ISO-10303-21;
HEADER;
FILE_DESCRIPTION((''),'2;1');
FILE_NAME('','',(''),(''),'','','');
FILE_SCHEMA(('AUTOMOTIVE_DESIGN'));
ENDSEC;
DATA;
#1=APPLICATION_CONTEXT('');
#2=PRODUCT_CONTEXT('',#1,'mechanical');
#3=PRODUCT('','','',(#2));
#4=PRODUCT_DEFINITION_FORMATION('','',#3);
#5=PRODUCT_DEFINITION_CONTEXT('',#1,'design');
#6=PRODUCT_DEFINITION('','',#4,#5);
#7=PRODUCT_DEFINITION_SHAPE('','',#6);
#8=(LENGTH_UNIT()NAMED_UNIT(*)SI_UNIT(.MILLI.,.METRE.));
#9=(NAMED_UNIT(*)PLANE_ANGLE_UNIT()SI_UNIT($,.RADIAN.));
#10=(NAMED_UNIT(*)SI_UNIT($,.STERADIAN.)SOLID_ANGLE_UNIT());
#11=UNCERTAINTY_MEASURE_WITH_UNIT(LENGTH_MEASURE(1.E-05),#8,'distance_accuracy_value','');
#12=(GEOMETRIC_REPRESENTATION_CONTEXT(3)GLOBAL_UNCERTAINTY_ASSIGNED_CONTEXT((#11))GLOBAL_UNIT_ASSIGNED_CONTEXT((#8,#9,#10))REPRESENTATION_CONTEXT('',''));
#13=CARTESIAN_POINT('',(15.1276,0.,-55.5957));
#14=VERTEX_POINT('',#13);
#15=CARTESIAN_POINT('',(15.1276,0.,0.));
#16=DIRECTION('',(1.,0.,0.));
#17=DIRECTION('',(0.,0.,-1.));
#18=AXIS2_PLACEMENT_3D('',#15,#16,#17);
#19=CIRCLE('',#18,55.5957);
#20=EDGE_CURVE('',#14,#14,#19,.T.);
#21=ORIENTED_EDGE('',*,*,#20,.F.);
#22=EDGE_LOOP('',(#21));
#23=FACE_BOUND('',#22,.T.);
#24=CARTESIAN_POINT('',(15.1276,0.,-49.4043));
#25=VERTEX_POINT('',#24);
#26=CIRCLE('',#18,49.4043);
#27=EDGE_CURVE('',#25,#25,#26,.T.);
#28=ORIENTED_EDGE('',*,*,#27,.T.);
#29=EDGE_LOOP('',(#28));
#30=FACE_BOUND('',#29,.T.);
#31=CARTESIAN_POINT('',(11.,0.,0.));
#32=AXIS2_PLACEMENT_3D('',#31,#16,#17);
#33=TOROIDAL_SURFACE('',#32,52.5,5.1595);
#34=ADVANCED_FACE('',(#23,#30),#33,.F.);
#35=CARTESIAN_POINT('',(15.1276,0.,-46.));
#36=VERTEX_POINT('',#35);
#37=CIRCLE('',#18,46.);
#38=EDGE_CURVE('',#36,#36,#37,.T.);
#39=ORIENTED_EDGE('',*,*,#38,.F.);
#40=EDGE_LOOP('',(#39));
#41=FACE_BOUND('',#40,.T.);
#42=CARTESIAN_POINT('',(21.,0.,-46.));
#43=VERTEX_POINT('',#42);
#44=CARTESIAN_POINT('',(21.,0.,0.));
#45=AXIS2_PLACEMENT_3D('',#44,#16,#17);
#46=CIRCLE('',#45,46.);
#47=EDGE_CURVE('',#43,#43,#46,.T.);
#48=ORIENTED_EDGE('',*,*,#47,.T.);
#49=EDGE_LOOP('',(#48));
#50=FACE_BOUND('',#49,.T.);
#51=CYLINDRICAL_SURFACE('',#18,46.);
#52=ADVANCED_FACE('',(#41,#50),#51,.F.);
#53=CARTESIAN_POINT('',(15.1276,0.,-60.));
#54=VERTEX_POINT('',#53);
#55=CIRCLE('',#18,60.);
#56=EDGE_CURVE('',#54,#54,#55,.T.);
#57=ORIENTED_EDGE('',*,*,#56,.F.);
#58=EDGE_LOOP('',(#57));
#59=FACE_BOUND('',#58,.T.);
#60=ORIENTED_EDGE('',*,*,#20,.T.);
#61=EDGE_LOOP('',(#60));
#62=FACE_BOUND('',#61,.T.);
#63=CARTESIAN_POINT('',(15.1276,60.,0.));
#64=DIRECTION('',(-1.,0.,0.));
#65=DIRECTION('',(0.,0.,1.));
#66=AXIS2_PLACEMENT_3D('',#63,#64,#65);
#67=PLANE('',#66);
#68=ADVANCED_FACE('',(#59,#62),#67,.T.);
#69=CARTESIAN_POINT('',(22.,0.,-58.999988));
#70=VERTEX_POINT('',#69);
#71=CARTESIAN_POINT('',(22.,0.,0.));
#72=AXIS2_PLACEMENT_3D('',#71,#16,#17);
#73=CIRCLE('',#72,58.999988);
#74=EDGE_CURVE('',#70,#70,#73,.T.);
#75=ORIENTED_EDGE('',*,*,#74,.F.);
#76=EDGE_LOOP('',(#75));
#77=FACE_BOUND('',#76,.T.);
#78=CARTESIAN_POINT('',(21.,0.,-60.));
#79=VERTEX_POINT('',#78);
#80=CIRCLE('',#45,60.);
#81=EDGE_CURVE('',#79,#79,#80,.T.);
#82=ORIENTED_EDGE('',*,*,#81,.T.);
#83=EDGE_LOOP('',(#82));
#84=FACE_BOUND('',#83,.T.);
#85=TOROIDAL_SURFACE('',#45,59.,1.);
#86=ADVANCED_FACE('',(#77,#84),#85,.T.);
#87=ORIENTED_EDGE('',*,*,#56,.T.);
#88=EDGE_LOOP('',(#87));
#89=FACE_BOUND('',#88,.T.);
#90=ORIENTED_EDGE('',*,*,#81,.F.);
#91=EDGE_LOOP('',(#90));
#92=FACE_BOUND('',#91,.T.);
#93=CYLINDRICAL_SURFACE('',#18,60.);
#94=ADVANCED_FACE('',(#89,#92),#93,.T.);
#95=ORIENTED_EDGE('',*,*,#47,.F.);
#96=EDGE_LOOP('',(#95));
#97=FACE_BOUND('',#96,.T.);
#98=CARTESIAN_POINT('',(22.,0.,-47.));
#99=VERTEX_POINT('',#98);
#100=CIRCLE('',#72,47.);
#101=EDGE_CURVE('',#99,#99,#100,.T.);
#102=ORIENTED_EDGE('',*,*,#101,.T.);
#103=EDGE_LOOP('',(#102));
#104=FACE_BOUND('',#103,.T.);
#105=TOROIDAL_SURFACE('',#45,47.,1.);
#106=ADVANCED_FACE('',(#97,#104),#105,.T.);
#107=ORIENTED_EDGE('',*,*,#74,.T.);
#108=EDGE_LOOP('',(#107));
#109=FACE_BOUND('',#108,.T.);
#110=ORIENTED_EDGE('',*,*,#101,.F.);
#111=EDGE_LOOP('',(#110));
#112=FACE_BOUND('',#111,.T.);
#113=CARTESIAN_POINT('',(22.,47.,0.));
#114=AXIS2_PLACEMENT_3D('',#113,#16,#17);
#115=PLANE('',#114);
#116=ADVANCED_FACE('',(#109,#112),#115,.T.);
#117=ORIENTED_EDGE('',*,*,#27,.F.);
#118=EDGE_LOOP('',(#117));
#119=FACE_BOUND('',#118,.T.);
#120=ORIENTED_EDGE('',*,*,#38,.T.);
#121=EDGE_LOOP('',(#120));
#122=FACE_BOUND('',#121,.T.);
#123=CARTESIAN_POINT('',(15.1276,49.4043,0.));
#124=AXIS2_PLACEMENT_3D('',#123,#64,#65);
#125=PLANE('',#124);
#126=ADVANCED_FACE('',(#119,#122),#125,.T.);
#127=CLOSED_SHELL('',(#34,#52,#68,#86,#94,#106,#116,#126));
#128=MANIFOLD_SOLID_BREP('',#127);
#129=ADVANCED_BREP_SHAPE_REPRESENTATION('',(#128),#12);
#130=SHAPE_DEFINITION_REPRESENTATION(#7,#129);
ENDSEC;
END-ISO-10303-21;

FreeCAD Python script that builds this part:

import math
import FreeCAD as App
import Part
import Sketcher

doc = App.newDocument("Part")
body = doc.addObject("PartDesign::Body", "Body")

# Sketch on XY plane
sketch1 = doc.addObject("Sketcher::SketchObject", "Sketch")
body.addObject(sketch1)
sketch1.AttachmentSupport = (doc.XY_Plane, [""])
sketch1.MapMode = "FlatFace"
sketch1.addGeometry([
    Part.LineSegment(App.Vector(15.1, 60, 0), App.Vector(15.1, 55.6, 0)),  # 0
    Part.ArcOfCircle(Part.Circle(App.Vector(11, 52.5, 0), App.Vector(0, 0, 1), 5.2), math.radians(-37), math.radians(37)),  # 1
    Part.LineSegment(App.Vector(15.1, 49.4, 0), App.Vector(15.1, 46, 0)),  # 2
    Part.LineSegment(App.Vector(15.1, 46, 0), App.Vector(21, 46, 0)),  # 3
    Part.ArcOfCircle(Part.Circle(App.Vector(21, 47, 0), App.Vector(0, 0, 1), 1), math.radians(-90), math.radians(0)),  # 4
    Part.LineSegment(App.Vector(22, 47, 0), App.Vector(22, 59, 0)),  # 5
    Part.ArcOfCircle(Part.Circle(App.Vector(21, 59, 0), App.Vector(0, 0, 1), 1), math.radians(0), math.radians(90)),  # 6
    Part.LineSegment(App.Vector(21, 60, 0), App.Vector(15.1, 60, 0)),  # 7
], False)
sketch1.addConstraint([
    Sketcher.Constraint("Coincident", 0, 2, 1, 2),
    Sketcher.Constraint("Coincident", 1, 1, 2, 1),
    Sketcher.Constraint("Coincident", 2, 2, 3, 1),
    Sketcher.Constraint("Tangent", 3, 2, 4, 1),
    Sketcher.Constraint("Tangent", 4, 2, 5, 1),
    Sketcher.Constraint("Coincident", 5, 2, 6, 1),
    Sketcher.Constraint("Tangent", 6, 2, 7, 1),
    Sketcher.Constraint("Coincident", 7, 2, 0, 1),
    Sketcher.Constraint("Vertical", 0),
    Sketcher.Constraint("Vertical", 2),
    Sketcher.Constraint("Horizontal", 3),
    Sketcher.Constraint("Vertical", 5),
    Sketcher.Constraint("Horizontal", 7),
    Sketcher.Constraint("Equal", 4, 6),
    Sketcher.Constraint("Vertical", 0, 2, 1, 1),
    Sketcher.Constraint("Radius", 4, 1.0),
    Sketcher.Constraint("DistanceX", -1, 1, 1, 3, 11.0),
    Sketcher.Constraint("DistanceX", -1, 1, 4, 3, 21.0),
    Sketcher.Constraint("DistanceY", -1, 1, 4, 3, 47.0),
    Sketcher.Constraint("DistanceY", -1, 1, 6, 3, 59.0),
    Sketcher.Constraint("DistanceY", -1, 1, 1, 3, 52.5),
    Sketcher.Constraint("Radius", 1, 5.1595),
    Sketcher.Constraint("DistanceX", 3, 1, 3, 2, 5.8724),
    Sketcher.Constraint("DistanceY", 5, 1, 5, 2, 11.999988),
])
revolution = doc.addObject("PartDesign::Revolution", "Revolution")
body.addObject(revolution)
revolution.Profile = sketch1
revolution.ReferenceAxis = (sketch1, ["H_Axis"])
revolution.Angle = 360

doc.recompute()
